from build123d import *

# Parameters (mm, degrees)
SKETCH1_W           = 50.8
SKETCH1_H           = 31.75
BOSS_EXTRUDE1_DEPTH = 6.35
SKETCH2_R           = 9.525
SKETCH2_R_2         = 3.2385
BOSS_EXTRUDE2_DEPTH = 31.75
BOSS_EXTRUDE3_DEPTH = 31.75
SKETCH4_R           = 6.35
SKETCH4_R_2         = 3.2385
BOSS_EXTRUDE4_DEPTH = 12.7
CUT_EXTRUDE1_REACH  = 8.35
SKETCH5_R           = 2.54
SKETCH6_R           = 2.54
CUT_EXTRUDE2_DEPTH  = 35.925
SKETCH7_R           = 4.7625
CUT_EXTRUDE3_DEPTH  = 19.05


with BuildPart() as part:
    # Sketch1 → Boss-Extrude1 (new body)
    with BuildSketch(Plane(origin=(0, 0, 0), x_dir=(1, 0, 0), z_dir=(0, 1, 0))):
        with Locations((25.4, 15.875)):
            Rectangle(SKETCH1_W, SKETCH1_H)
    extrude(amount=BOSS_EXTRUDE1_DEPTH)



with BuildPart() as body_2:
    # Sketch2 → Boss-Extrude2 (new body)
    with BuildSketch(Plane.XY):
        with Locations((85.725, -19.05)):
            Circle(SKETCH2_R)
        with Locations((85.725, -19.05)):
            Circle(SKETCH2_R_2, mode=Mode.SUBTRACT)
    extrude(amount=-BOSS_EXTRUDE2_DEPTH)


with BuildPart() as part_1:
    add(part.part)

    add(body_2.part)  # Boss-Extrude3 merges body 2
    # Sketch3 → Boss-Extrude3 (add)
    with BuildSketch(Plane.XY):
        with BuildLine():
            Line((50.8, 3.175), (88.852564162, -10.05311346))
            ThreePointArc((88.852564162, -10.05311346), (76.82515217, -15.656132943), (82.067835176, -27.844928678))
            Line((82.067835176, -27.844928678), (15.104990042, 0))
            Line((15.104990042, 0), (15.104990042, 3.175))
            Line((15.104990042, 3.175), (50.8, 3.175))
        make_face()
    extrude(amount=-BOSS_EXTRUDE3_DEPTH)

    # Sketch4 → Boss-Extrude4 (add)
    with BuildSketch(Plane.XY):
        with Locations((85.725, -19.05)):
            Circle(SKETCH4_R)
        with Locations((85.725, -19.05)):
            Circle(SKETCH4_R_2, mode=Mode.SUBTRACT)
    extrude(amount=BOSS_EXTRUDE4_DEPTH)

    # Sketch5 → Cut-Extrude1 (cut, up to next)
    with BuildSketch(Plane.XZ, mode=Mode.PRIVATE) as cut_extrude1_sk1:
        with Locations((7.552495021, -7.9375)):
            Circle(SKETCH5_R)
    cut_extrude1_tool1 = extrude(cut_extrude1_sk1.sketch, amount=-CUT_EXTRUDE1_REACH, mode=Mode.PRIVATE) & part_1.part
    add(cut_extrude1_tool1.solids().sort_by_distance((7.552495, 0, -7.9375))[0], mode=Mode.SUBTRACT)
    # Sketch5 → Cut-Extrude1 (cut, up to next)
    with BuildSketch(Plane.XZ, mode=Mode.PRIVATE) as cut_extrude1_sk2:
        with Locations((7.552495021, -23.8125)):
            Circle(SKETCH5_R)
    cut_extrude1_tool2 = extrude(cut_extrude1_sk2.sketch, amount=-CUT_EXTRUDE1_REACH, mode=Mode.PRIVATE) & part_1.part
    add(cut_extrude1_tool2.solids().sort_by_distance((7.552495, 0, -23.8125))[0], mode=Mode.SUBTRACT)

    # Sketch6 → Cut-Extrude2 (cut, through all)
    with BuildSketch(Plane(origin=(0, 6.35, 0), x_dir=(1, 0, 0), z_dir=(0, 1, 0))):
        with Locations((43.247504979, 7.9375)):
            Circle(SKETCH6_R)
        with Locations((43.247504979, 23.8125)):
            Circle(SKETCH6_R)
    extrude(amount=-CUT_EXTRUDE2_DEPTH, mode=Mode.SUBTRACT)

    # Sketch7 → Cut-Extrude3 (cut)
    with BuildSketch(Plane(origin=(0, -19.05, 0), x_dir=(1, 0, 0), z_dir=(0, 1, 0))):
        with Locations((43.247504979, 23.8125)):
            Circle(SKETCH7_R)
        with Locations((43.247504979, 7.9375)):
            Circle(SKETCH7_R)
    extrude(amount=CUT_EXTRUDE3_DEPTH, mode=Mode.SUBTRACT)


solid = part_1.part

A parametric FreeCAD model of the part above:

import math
import FreeCAD as App
import Part
import Sketcher
Q = App.Units.Quantity

doc = App.newDocument("Part")
params = doc.addObject("Spreadsheet::Sheet", "Params")
for row, (alias, value) in enumerate([
    ("sketch1_width", "2 in"),
    ("sketch1_height", "1.25 in"),
    ("pad1_length", "0.25 in"),
    ("sketch2_diameter", "0.75 in"),
    ("sketch2_diameter2", "0.255 in"),
    ("pad2_length", "1.25 in"),
    ("sketch3_radius", "0.375 in"),
    ("sketch3_height", "0.125 in"),
    ("pad3_length", "1.25 in"),
    ("sketch4_diameter", "0.5 in"),
    ("sketch4_diameter2", "0.255 in"),
    ("pad4_length", "0.5 in"),
    ("sketch5_diameter", "0.2 in"),
    ("sketch6_diameter", "0.2 in"),
    ("sketch7_diameter", "0.2 in"),
    ("sketch8_diameter", "0.375 in"),
    ("pocket4_length", "0.75 in"),
], start=1):
    params.set(f"A{row}", alias)
    params.set(f"B{row}", "=" + value)
    params.setAlias(f"B{row}", alias)

body = doc.addObject("PartDesign::Body", "Body")

# Sketch on XZ plane
sketch1 = doc.addObject("Sketcher::SketchObject", "Sketch")
body.addObject(sketch1)
sketch1.AttachmentSupport = (doc.XZ_Plane, [""])
sketch1.MapMode = "FlatFace"
sketch1.addGeometry(Part.LineSegment(App.Vector(0, -32, 0), App.Vector(0, 0, 0)), False)
sketch1.addGeometry(Part.LineSegment(App.Vector(0, 0, 0), App.Vector(51, 0, 0)), False)
sketch1.addGeometry(Part.LineSegment(App.Vector(51, 0, 0), App.Vector(51, -32, 0)), False)
sketch1.addGeometry(Part.LineSegment(App.Vector(51, -32, 0), App.Vector(0, -32, 0)), False)
sketch1.addConstraint(Sketcher.Constraint("Coincident", 0, 2, 1, 1))
sketch1.addConstraint(Sketcher.Constraint("Coincident", 1, 2, 2, 1))
sketch1.addConstraint(Sketcher.Constraint("Coincident", 2, 2, 3, 1))
sketch1.addConstraint(Sketcher.Constraint("Coincident", 3, 2, 0, 1))
sketch1.addConstraint(Sketcher.Constraint("Vertical", 0))
sketch1.addConstraint(Sketcher.Constraint("Horizontal", 1))
sketch1.addConstraint(Sketcher.Constraint("Vertical", 2))
sketch1.addConstraint(Sketcher.Constraint("Horizontal", 3))
sketch1.addConstraint(Sketcher.Constraint("Coincident", 0, 2, -1, 1))
sketch1.addConstraint(Sketcher.Constraint("DistanceX", 1, 1, 1, 2, Q("2 in")))
sketch1.addConstraint(Sketcher.Constraint("DistanceY", 0, 1, 0, 2, Q("1.25 in")))
sketch1.setExpression("Constraints[9]", "Params.sketch1_width")
sketch1.setExpression("Constraints[10]", "Params.sketch1_height")
pad1 = doc.addObject("PartDesign::Pad", "Pad")
body.addObject(pad1)
pad1.Profile = sketch1
pad1.setExpression("Length", "Params.pad1_length")
pad1.Reversed = True
body2 = doc.addObject("PartDesign::Body", "Body001")

# Sketch on XY plane
sketch2 = doc.addObject("Sketcher::SketchObject", "Sketch001")
body2.addObject(sketch2)
sketch2.AttachmentSupport = (doc.getObject("XY_Plane001"), [""])
sketch2.MapMode = "FlatFace"
sketch2.addGeometry(Part.Circle(App.Vector(85.7, -19.1, 0), App.Vector(0, 0, 1), 9.5), False)
sketch2.addGeometry(Part.Circle(App.Vector(85.7, -19.1, 0), App.Vector(0, 0, 1), 3.2), False)
sketch2.addConstraint(Sketcher.Constraint("Coincident", 1, 3, 0, 3))
sketch2.addConstraint(Sketcher.Constraint("Diameter", 0, Q("0.75 in")))
sketch2.addConstraint(Sketcher.Constraint("Diameter", 1, Q("0.255 in")))
sketch2.addConstraint(Sketcher.Constraint("DistanceY", 0, 3, -1, 1, Q("0.75 in")))
sketch2.addConstraint(Sketcher.Constraint("DistanceX", -1, 1, 0, 3, Q("3.375 in")))
sketch2.setExpression("Constraints[1]", "Params.sketch2_diameter")
sketch2.setExpression("Constraints[2]", "Params.sketch2_diameter2")
pad2 = doc.addObject("PartDesign::Pad", "Pad001")
body2.addObject(pad2)
pad2.Profile = sketch2
pad2.setExpression("Length", "Params.pad2_length")
pad2.Reversed = True
body.AllowCompound = True
doc.recompute()

boolean = doc.addObject("PartDesign::Boolean", "Boolean")
body.addObject(boolean)
boolean.Type = "Fuse"
boolean.addObjects([body2])

# Sketch on XY plane
sketch3 = doc.addObject("Sketcher::SketchObject", "Sketch002")
body.addObject(sketch3)
sketch3.AttachmentSupport = (doc.XY_Plane, [""])
sketch3.MapMode = "FlatFace"
sketch3.addGeometry(Part.LineSegment(App.Vector(88.9, -10.1, 0), App.Vector(50.8, 3.2, 0)), False)
sketch3.addGeometry(Part.LineSegment(App.Vector(50.8, 3.2, 0), App.Vector(15.1, 3.2, 0)), False)
sketch3.addGeometry(Part.LineSegment(App.Vector(15.1, 3.2, 0), App.Vector(15.1, 0, 0)), False)
sketch3.addGeometry(Part.LineSegment(App.Vector(15.1, 0, 0), App.Vector(82.1, -27.8, 0)), False)
sketch3.addGeometry(Part.ArcOfCircle(Part.Circle(App.Vector(85.7, -19.1, 0), App.Vector(0, 0, 1), 9.5), math.radians(71), math.radians(247)), False)
sketch3.addConstraint(Sketcher.Constraint("Coincident", 0, 2, 1, 1))
sketch3.addConstraint(Sketcher.Constraint("Coincident", 1, 2, 2, 1))
sketch3.addConstraint(Sketcher.Constraint("Coincident", 2, 2, 3, 1))
sketch3.addConstraint(Sketcher.Constraint("Tangent", 3, 2, 4, 2))
sketch3.addConstraint(Sketcher.Constraint("Tangent", 4, 1, 0, 1))
sketch3.addConstraint(Sketcher.Constraint("Horizontal", 1))
sketch3.addConstraint(Sketcher.Constraint("Vertical", 2))
sketch3.addConstraint(Sketcher.Constraint("PointOnObject", 2, 2, -1))
sketch3.addConstraint(Sketcher.Constraint("DistanceX", -1, 1, 0, 2, Q("2 in")))
sketch3.addConstraint(Sketcher.Constraint("Radius", 4, Q("0.375 in")))
sketch3.addConstraint(Sketcher.Constraint("DistanceY", 2, 2, 2, 1, Q("0.125 in")))
sketch3.addConstraint(Sketcher.Constraint("DistanceY", 4, 3, -1, 1, Q("0.75 in")))
sketch3.addConstraint(Sketcher.Constraint("DistanceX", -1, 1, 4, 3, Q("3.375 in")))
sketch3.addConstraint(Sketcher.Constraint("DistanceX", 1, 2, 1, 1, 35.69501))
sketch3.setExpression("Constraints[9]", "Params.sketch3_radius")
sketch3.setExpression("Constraints[10]", "Params.sketch3_height")
pad3 = doc.addObject("PartDesign::Pad", "Pad002")
body.addObject(pad3)
pad3.Profile = sketch3
pad3.setExpression("Length", "Params.pad3_length")
pad3.Reversed = True

# Sketch on XY plane
sketch4 = doc.addObject("Sketcher::SketchObject", "Sketch003")
body.addObject(sketch4)
sketch4.AttachmentSupport = (doc.XY_Plane, [""])
sketch4.MapMode = "FlatFace"
sketch4.addGeometry(Part.Circle(App.Vector(85.7, -19.1, 0), App.Vector(0, 0, 1), 6.3), False)
sketch4.addGeometry(Part.Circle(App.Vector(85.7, -19.1, 0), App.Vector(0, 0, 1), 3.2), False)
sketch4.addConstraint(Sketcher.Constraint("Coincident", 1, 3, 0, 3))
sketch4.addConstraint(Sketcher.Constraint("Diameter", 0, Q("0.5 in")))
sketch4.addConstraint(Sketcher.Constraint("Diameter", 1, Q("0.255 in")))
sketch4.addConstraint(Sketcher.Constraint("DistanceY", 0, 3, -1, 1, Q("0.75 in")))
sketch4.addConstraint(Sketcher.Constraint("DistanceX", -1, 1, 0, 3, Q("3.375 in")))
sketch4.setExpression("Constraints[1]", "Params.sketch4_diameter")
sketch4.setExpression("Constraints[2]", "Params.sketch4_diameter2")
pad4 = doc.addObject("PartDesign::Pad", "Pad003")
body.addObject(pad4)
pad4.Profile = sketch4
pad4.setExpression("Length", "Params.pad4_length")

# Sketch on XZ plane
sketch5 = doc.addObject("Sketcher::SketchObject", "Sketch004")
body.addObject(sketch5)
sketch5.AttachmentSupport = (doc.XZ_Plane, [""])
sketch5.MapMode = "FlatFace"
sketch5.addGeometry(Part.Circle(App.Vector(7.6, -7.9, 0), App.Vector(0, 0, 1), 2.5), False)
sketch5.addConstraint(Sketcher.Constraint("Diameter", 0, Q("0.2 in")))
sketch5.addConstraint(Sketcher.Constraint("DistanceY", 0, 3, -1, 1, Q("0.3125 in")))
sketch5.addConstraint(Sketcher.Constraint("DistanceX", -1, 1, 0, 3, 7.552495))
sketch5.setExpression("Constraints[0]", "Params.sketch5_diameter")
pocket1 = doc.addObject("PartDesign::Pocket", "Pocket")
body.addObject(pocket1)
pocket1.Profile = sketch5
pocket1.Type = "UpToFirst"

# Sketch on XZ plane
sketch6 = doc.addObject("Sketcher::SketchObject", "Sketch005")
body.addObject(sketch6)
sketch6.AttachmentSupport = (doc.XZ_Plane, [""])
sketch6.MapMode = "FlatFace"
sketch6.addGeometry(Part.Circle(App.Vector(7.6, -23.8, 0), App.Vector(0, 0, 1), 2.5), False)
sketch6.addConstraint(Sketcher.Constraint("Diameter", 0, Q("0.2 in")))
sketch6.addConstraint(Sketcher.Constraint("DistanceY", 0, 3, -1, 1, Q("0.9375 in")))
sketch6.addConstraint(Sketcher.Constraint("DistanceX", -1, 1, 0, 3, 7.552495))
sketch6.setExpression("Constraints[0]", "Params.sketch6_diameter")
pocket2 = doc.addObject("PartDesign::Pocket", "Pocket001")
body.addObject(pocket2)
pocket2.Profile = sketch6
pocket2.Type = "UpToFirst"

# Sketch on XZ plane
sketch7 = doc.addObject("Sketcher::SketchObject", "Sketch006")
body.addObject(sketch7)
sketch7.AttachmentSupport = (doc.XZ_Plane, [""])
sketch7.MapMode = "FlatFace"
sketch7.AttachmentOffset = App.Placement(App.Vector(0, 0, -0.25 * 25.4), App.Rotation())
sketch7.addGeometry(Part.Circle(App.Vector(43.2, -7.9, 0), App.Vector(0, 0, 1), 2.5), False)
sketch7.addGeometry(Part.Circle(App.Vector(43.2, -23.8, 0), App.Vector(0, 0, 1), 2.5), False)
sketch7.addConstraint(Sketcher.Constraint("Equal", 0, 1))
sketch7.addConstraint(Sketcher.Constraint("Vertical", 0, 3, 1, 3))
sketch7.addConstraint(Sketcher.Constraint("Diameter", 0, Q("0.2 in")))
sketch7.addConstraint(Sketcher.Constraint("DistanceY", 0, 3, -1, 1, Q("0.3125 in")))
sketch7.addConstraint(Sketcher.Constraint("DistanceY", 1, 3, -1, 1, Q("0.9375 in")))
sketch7.addConstraint(Sketcher.Constraint("DistanceX", -1, 1, 0, 3, 43.247505))
sketch7.setExpression("Constraints[2]", "Params.sketch7_diameter")
pocket3 = doc.addObject("PartDesign::Pocket", "Pocket002")
body.addObject(pocket3)
pocket3.Profile = sketch7
pocket3.Type = "ThroughAll"
pocket3.Reversed = True

# Sketch on XZ plane
sketch8 = doc.addObject("Sketcher::SketchObject", "Sketch007")
body.addObject(sketch8)
sketch8.AttachmentSupport = (doc.XZ_Plane, [""])
sketch8.MapMode = "FlatFace"
sketch8.AttachmentOffset = App.Placement(App.Vector(0, 0, 0.75 * 25.4), App.Rotation())
sketch8.addGeometry(Part.Circle(App.Vector(43.2, -23.8, 0), App.Vector(0, 0, 1), 4.8), False)
sketch8.addGeometry(Part.Circle(App.Vector(43.2, -7.9, 0), App.Vector(0, 0, 1), 4.8), False)
sketch8.addConstraint(Sketcher.Constraint("Equal", 0, 1))
sketch8.addConstraint(Sketcher.Constraint("Vertical", 0, 3, 1, 3))
sketch8.addConstraint(Sketcher.Constraint("Diameter", 0, Q("0.375 in")))
sketch8.addConstraint(Sketcher.Constraint("DistanceY", 0, 3, -1, 1, Q("0.9375 in")))
sketch8.addConstraint(Sketcher.Constraint("DistanceY", 1, 3, -1, 1, Q("0.3125 in")))
sketch8.addConstraint(Sketcher.Constraint("DistanceX", -1, 1, 0, 3, 43.247505))
sketch8.setExpression("Constraints[2]", "Params.sketch8_diameter")
pocket4 = doc.addObject("PartDesign::Pocket", "Pocket003")
body.addObject(pocket4)
pocket4.Profile = sketch8
pocket4.setExpression("Length", "Params.pocket4_length")

doc.recompute()
